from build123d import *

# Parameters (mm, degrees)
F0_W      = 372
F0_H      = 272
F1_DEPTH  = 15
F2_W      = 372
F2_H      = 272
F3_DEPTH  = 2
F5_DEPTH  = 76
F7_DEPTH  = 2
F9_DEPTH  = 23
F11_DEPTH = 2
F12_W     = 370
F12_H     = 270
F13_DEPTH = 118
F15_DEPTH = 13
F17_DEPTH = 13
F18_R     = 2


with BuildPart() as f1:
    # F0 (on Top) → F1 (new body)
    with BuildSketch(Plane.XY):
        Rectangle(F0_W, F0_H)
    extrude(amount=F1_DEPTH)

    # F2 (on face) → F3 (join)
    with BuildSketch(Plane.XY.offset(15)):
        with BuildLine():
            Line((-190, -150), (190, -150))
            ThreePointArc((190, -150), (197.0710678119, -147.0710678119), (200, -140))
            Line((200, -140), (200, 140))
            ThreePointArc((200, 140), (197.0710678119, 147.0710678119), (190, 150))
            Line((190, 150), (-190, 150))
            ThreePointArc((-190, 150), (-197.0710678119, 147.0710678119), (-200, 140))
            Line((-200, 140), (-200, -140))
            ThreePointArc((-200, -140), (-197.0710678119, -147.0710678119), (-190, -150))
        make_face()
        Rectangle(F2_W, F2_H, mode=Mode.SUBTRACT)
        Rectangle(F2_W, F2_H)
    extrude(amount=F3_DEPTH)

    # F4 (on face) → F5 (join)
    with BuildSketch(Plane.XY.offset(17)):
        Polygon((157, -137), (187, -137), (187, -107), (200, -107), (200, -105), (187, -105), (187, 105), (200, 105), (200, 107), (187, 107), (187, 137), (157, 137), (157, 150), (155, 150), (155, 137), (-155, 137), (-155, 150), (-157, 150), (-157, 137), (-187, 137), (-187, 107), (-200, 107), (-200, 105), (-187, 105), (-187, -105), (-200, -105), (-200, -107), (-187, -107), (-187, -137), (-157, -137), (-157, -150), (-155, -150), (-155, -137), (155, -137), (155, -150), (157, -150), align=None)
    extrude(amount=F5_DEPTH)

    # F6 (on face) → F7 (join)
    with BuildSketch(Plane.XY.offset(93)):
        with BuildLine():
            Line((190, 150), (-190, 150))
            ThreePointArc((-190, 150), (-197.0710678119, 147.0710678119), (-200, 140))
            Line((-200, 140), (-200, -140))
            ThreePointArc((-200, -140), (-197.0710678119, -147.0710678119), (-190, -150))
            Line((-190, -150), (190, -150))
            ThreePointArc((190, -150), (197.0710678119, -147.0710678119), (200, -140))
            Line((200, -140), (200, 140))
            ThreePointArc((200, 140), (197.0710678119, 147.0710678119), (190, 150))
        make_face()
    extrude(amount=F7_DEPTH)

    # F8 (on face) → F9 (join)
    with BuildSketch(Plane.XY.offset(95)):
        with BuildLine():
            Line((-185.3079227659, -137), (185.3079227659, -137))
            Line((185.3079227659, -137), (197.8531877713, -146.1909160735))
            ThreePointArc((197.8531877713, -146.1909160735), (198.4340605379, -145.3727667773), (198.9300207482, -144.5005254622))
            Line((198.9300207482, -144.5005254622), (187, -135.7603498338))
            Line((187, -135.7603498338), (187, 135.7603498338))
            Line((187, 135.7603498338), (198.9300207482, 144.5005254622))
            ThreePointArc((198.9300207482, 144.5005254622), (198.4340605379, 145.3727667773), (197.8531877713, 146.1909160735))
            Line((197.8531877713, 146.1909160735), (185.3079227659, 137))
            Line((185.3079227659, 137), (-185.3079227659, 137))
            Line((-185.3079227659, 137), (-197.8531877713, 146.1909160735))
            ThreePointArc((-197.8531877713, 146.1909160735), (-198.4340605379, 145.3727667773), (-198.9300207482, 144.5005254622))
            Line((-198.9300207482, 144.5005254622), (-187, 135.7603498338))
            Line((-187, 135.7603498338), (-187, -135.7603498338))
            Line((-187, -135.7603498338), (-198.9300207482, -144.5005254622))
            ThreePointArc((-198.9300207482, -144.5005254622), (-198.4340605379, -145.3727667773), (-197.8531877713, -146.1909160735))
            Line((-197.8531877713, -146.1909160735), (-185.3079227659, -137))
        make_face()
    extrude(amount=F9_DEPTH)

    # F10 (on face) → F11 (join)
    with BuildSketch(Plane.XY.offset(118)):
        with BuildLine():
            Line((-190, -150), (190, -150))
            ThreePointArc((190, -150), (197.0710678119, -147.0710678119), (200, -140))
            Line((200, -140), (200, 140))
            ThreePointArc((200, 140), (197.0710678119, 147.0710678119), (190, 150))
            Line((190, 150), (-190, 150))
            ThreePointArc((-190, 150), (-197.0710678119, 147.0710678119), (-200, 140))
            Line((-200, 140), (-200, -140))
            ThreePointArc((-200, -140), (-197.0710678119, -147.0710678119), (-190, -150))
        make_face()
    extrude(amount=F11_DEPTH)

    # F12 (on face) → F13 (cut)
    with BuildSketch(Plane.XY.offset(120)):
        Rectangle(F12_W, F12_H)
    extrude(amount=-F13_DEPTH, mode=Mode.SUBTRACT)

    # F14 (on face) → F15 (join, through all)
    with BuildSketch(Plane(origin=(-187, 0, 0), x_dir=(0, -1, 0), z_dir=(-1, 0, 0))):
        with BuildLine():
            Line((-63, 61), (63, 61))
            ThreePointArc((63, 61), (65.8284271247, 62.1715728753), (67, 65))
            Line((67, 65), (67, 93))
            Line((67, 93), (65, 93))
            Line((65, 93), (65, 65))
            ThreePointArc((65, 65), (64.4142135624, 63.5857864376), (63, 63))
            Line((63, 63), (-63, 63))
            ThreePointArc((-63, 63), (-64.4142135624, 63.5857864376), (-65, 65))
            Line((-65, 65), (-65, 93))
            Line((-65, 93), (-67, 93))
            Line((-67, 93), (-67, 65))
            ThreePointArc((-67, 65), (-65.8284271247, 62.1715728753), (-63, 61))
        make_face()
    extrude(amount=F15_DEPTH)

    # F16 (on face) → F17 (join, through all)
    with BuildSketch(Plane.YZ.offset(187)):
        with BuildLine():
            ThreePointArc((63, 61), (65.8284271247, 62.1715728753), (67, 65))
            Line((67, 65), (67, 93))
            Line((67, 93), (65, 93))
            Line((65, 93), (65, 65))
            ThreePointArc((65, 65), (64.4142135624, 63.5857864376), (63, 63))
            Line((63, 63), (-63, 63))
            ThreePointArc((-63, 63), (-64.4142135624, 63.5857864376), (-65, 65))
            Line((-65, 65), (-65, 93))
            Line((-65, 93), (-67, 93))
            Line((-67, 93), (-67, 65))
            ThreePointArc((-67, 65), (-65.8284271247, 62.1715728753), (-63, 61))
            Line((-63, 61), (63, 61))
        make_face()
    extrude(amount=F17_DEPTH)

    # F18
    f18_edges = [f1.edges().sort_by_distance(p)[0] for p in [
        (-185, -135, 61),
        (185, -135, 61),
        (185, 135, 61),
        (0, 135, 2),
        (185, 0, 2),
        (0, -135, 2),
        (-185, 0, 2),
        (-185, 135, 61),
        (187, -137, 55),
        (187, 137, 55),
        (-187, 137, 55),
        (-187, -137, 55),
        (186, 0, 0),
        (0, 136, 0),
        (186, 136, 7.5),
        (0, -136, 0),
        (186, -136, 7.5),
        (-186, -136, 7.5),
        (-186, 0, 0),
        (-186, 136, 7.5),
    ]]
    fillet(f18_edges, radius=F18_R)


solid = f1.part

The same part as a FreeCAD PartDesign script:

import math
import FreeCAD as App
import Part
import Sketcher


def edges_at(feature, points):
    """Names of the edges that pass closest to the given points."""
    edges = feature.Shape.Edges
    near = lambda p: min(range(len(edges)), key=lambda i: edges[i].distToShape(Part.Vertex(*p))[0])
    return sorted({f"Edge{near(p) + 1}" for p in points})


def add_polygon(sketch, points):
    """Adds a closed chain of lines whose ends are joined by coincident constraints."""
    first, n = sketch.GeometryCount, len(points)
    for a, b in zip(points, points[1:] + points[:1]):
        sketch.addGeometry(Part.LineSegment(App.Vector(*a, 0), App.Vector(*b, 0)), False)
    for i in range(n):
        sketch.addConstraint(Sketcher.Constraint("Coincident", first + i, 2, first + (i + 1) % n, 1))

doc = App.newDocument("Part")
body = doc.addObject("PartDesign::Body", "Body")

sketch1 = body.newObject("Sketcher::SketchObject", "Sketch")
sketch1.AttachmentSupport = (doc.getObject("XY_Plane"), [""])
sketch1.MapMode = "FlatFace"
add_polygon(sketch1, [(-186, 136), (-186, -136), (186, -136), (186, 136)])
sketch1.addConstraint([
    Sketcher.Constraint("Vertical", 0),
    Sketcher.Constraint("Horizontal", 1),
    Sketcher.Constraint("Vertical", 2),
    Sketcher.Constraint("Horizontal", 3),
    Sketcher.Constraint("Symmetric", 0, 2, 2, 2, -1, 1),
    Sketcher.Constraint("DistanceX", 1, 1, 1, 2, 372.0),
    Sketcher.Constraint("DistanceY", 0, 2, 0, 1, 272.0),
])
pad1 = body.newObject("PartDesign::Pad", "Pad")
pad1.Profile = sketch1
pad1.Length = 15

sketch2 = body.newObject("Sketcher::SketchObject", "Sketch001")
sketch2.AttachmentSupport = (doc.getObject("XY_Plane"), [""])
sketch2.MapMode = "FlatFace"
sketch2.AttachmentOffset = App.Placement(App.Vector(0, 0, 15), App.Rotation())
sketch2.addGeometry([
    Part.LineSegment(App.Vector(-190, -150, 0), App.Vector(190, -150, 0)),
    Part.ArcOfCircle(Part.Circle(App.Vector(190, -140, 0), App.Vector(0, 0, 1), 10), math.radians(-90), math.radians(0)),
    Part.LineSegment(App.Vector(200, -140, 0), App.Vector(200, 140, 0)),
    Part.ArcOfCircle(Part.Circle(App.Vector(190, 140, 0), App.Vector(0, 0, 1), 10), math.radians(0), math.radians(90)),
    Part.LineSegment(App.Vector(190, 150, 0), App.Vector(-190, 150, 0)),
    Part.ArcOfCircle(Part.Circle(App.Vector(-190, 140, 0), App.Vector(0, 0, 1), 10), math.radians(90), math.radians(180)),
    Part.LineSegment(App.Vector(-200, 140, 0), App.Vector(-200, -140, 0)),
    Part.ArcOfCircle(Part.Circle(App.Vector(-190, -140, 0), App.Vector(0, 0, 1), 10), math.radians(180), math.radians(270)),
], False)
sketch2.addConstraint([
    Sketcher.Constraint("Tangent", 0, 2, 1, 1),
    Sketcher.Constraint("Tangent", 1, 2, 2, 1),
    Sketcher.Constraint("Tangent", 2, 2, 3, 1),
    Sketcher.Constraint("Tangent", 3, 2, 4, 1),
    Sketcher.Constraint("Tangent", 4, 2, 5, 1),
    Sketcher.Constraint("Tangent", 5, 2, 6, 1),
    Sketcher.Constraint("Tangent", 6, 2, 7, 1),
    Sketcher.Constraint("Tangent", 7, 2, 0, 1),
    Sketcher.Constraint("Horizontal", 0),
    Sketcher.Constraint("Vertical", 2),
    Sketcher.Constraint("Horizontal", 4),
    Sketcher.Constraint("Vertical", 6),
    Sketcher.Constraint("Equal", 1, 3),
    Sketcher.Constraint("Equal", 3, 5),
    Sketcher.Constraint("Equal", 5, 7),
    Sketcher.Constraint("Symmetric", 1, 3, 5, 3, -1, 1),
    Sketcher.Constraint("Radius", 1, 10.0),
    Sketcher.Constraint("DistanceX", 0, 1, 0, 2, 380.0),
    Sketcher.Constraint("DistanceY", 2, 1, 2, 2, 280.0),
])
pad2 = body.newObject("PartDesign::Pad", "Pad001")
pad2.Profile = sketch2
pad2.Length = 2

sketch3 = body.newObject("Sketcher::SketchObject", "Sketch002")
sketch3.AttachmentSupport = (doc.getObject("XY_Plane"), [""])
sketch3.MapMode = "FlatFace"
sketch3.AttachmentOffset = App.Placement(App.Vector(0, 0, 17), App.Rotation())
add_polygon(sketch3, [(157, -137), (187, -137), (187, -107), (200, -107), (200, -105), (187, -105), (187, 105), (200, 105), (200, 107), (187, 107), (187, 137), (157, 137), (157, 150), (155, 150), (155, 137), (-155, 137), (-155, 150), (-157, 150), (-157, 137), (-187, 137), (-187, 107), (-200, 107), (-200, 105), (-187, 105), (-187, -105), (-200, -105), (-200, -107), (-187, -107), (-187, -137), (-157, -137), (-157, -150), (-155, -150), (-155, -137), (155, -137), (155, -150), (157, -150)])
sketch3.addConstraint([
    Sketcher.Constraint("Horizontal", 0),
    Sketcher.Constraint("Vertical", 1),
    Sketcher.Constraint("Horizontal", 2),
    Sketcher.Constraint("Vertical", 3),
    Sketcher.Constraint("Horizontal", 4),
    Sketcher.Constraint("Vertical", 5),
    Sketcher.Constraint("Horizontal", 6),
    Sketcher.Constraint("Vertical", 7),
    Sketcher.Constraint("Horizontal", 8),
    Sketcher.Constraint("Vertical", 9),
    Sketcher.Constraint("Horizontal", 10),
    Sketcher.Constraint("Vertical", 11),
    Sketcher.Constraint("Horizontal", 12),
    Sketcher.Constraint("Vertical", 13),
    Sketcher.Constraint("Horizontal", 14),
    Sketcher.Constraint("Vertical", 15),
    Sketcher.Constraint("Horizontal", 16),
    Sketcher.Constraint("Vertical", 17),
    Sketcher.Constraint("Horizontal", 18),
    Sketcher.Constraint("Vertical", 19),
    Sketcher.Constraint("Horizontal", 20),
    Sketcher.Constraint("Vertical", 21),
    Sketcher.Constraint("Horizontal", 22),
    Sketcher.Constraint("Vertical", 23),
    Sketcher.Constraint("Horizontal", 24),
    Sketcher.Constraint("Vertical", 25),
    Sketcher.Constraint("Horizontal", 26),
    Sketcher.Constraint("Vertical", 27),
    Sketcher.Constraint("Horizontal", 28),
    Sketcher.Constraint("Vertical", 29),
    Sketcher.Constraint("Horizontal", 30),
    Sketcher.Constraint("Vertical", 31),
    Sketcher.Constraint("Horizontal", 32),
    Sketcher.Constraint("Vertical", 33),
    Sketcher.Constraint("Horizontal", 34),
    Sketcher.Constraint("Vertical", 35),
    Sketcher.Constraint("Symmetric", 0, 2, 18, 2, -1, 1),
    Sketcher.Constraint("Symmetric", 2, 2, 20, 2, -1, 1),
    Sketcher.Constraint("Symmetric", 4, 2, 22, 2, -1, 1),
    Sketcher.Constraint("Symmetric", 6, 2, 24, 2, -1, 1),
    Sketcher.Constraint("Symmetric", 8, 2, 26, 2, -1, 1),
    Sketcher.Constraint("Symmetric", 10, 2, 28, 2, -1, 1),
    Sketcher.Constraint("Symmetric", 12, 2, 30, 2, -1, 1),
    Sketcher.Constraint("Symmetric", 14, 2, 32, 2, -1, 1),
    Sketcher.Constraint("Symmetric", 16, 2, 34, 2, -1, 1),
    Sketcher.Constraint("Symmetric", 12, 2, 15, 2, -2),
    Sketcher.Constraint("Symmetric", 10, 2, 17, 2, -2),
    Sketcher.Constraint("Symmetric", 8, 2, 19, 2, -2),
    Sketcher.Constraint("Symmetric", 6, 2, 21, 2, -2),
    Sketcher.Constraint("Horizontal", 10, 2, 13, 2),
    Sketcher.Constraint("Vertical", 1, 2, 4, 2),
    Sketcher.Constraint("Equal", 28, 1),
    Sketcher.Constraint("Equal", 34, 3),
    Sketcher.Constraint("Equal", 26, 11),
    Sketcher.Constraint("DistanceX", 0, 1, 0, 2, 30.0),
    Sketcher.Constraint("DistanceX", 2, 1, 2, 2, 13.0),
    Sketcher.Constraint("DistanceX", 12, 2, 12, 1, 2.0),
    Sketcher.Constraint("DistanceX", 14, 2, 14, 1, 310.0),
    Sketcher.Constraint("DistanceY", 5, 1, 5, 2, 210.0),
])
pad3 = body.newObject("PartDesign::Pad", "Pad002")
pad3.Profile = sketch3
pad3.Length = 76

sketch4 = body.newObject("Sketcher::SketchObject", "Sketch003")
sketch4.AttachmentSupport = (doc.getObject("XY_Plane"), [""])
sketch4.MapMode = "FlatFace"
sketch4.AttachmentOffset = App.Placement(App.Vector(0, 0, 93), App.Rotation())
sketch4.addGeometry([
    Part.LineSegment(App.Vector(190, 150, 0), App.Vector(-190, 150, 0)),
    Part.ArcOfCircle(Part.Circle(App.Vector(-190, 140, 0), App.Vector(0, 0, 1), 10), math.radians(90), math.radians(180)),
    Part.LineSegment(App.Vector(-200, 140, 0), App.Vector(-200, -140, 0)),
    Part.ArcOfCircle(Part.Circle(App.Vector(-190, -140, 0), App.Vector(0, 0, 1), 10), math.radians(180), math.radians(270)),
    Part.LineSegment(App.Vector(-190, -150, 0), App.Vector(190, -150, 0)),
    Part.ArcOfCircle(Part.Circle(App.Vector(190, -140, 0), App.Vector(0, 0, 1), 10), math.radians(-90), math.radians(0)),
    Part.LineSegment(App.Vector(200, -140, 0), App.Vector(200, 140, 0)),
    Part.ArcOfCircle(Part.Circle(App.Vector(190, 140, 0), App.Vector(0, 0, 1), 10), math.radians(0), math.radians(90)),
], False)
sketch4.addConstraint([
    Sketcher.Constraint("Tangent", 0, 2, 1, 1),
    Sketcher.Constraint("Tangent", 1, 2, 2, 1),
    Sketcher.Constraint("Tangent", 2, 2, 3, 1),
    Sketcher.Constraint("Tangent", 3, 2, 4, 1),
    Sketcher.Constraint("Tangent", 4, 2, 5, 1),
    Sketcher.Constraint("Tangent", 5, 2, 6, 1),
    Sketcher.Constraint("Tangent", 6, 2, 7, 1),
    Sketcher.Constraint("Tangent", 7, 2, 0, 1),
    Sketcher.Constraint("Horizontal", 0),
    Sketcher.Constraint("Vertical", 2),
    Sketcher.Constraint("Horizontal", 4),
    Sketcher.Constraint("Vertical", 6),
    Sketcher.Constraint("Equal", 1, 3),
    Sketcher.Constraint("Equal", 3, 5),
    Sketcher.Constraint("Equal", 5, 7),
    Sketcher.Constraint("Symmetric", 1, 3, 5, 3, -1, 1),
    Sketcher.Constraint("Radius", 1, 10.0),
    Sketcher.Constraint("DistanceX", 0, 2, 0, 1, 380.0),
    Sketcher.Constraint("DistanceY", 2, 2, 2, 1, 280.0),
])
pad4 = body.newObject("PartDesign::Pad", "Pad003")
pad4.Profile = sketch4
pad4.Length = 2

sketch5 = body.newObject("Sketcher::SketchObject", "Sketch004")
sketch5.AttachmentSupport = (doc.getObject("XY_Plane"), [""])
sketch5.MapMode = "FlatFace"
sketch5.AttachmentOffset = App.Placement(App.Vector(0, 0, 95), App.Rotation())
sketch5.addGeometry([
    Part.LineSegment(App.Vector(-185.307923, -137, 0), App.Vector(185.307923, -137, 0)),
    Part.LineSegment(App.Vector(185.307923, -137, 0), App.Vector(197.853188, -146.190916, 0)),
    Part.ArcOfCircle(Part.Circle(App.Vector(190, -140, 0), App.Vector(0, 0, 1), 10), math.radians(-38.249829), math.radians(-26.747055)),
    Part.LineSegment(App.Vector(198.930021, -144.500525, 0), App.Vector(187, -135.76035, 0)),
    Part.LineSegment(App.Vector(187, -135.76035, 0), App.Vector(187, 135.76035, 0)),
    Part.LineSegment(App.Vector(187, 135.76035, 0), App.Vector(198.930021, 144.500525, 0)),
    Part.ArcOfCircle(Part.Circle(App.Vector(190, 140, 0), App.Vector(0, 0, 1), 10), math.radians(26.747055), math.radians(38.249829)),
    Part.LineSegment(App.Vector(197.853188, 146.190916, 0), App.Vector(185.307923, 137, 0)),
    Part.LineSegment(App.Vector(185.307923, 137, 0), App.Vector(-185.307923, 137, 0)),
    Part.LineSegment(App.Vector(-185.307923, 137, 0), App.Vector(-197.853188, 146.190916, 0)),
    Part.ArcOfCircle(Part.Circle(App.Vector(-190, 140, 0), App.Vector(0, 0, 1), 10), math.radians(141.750171), math.radians(153.252945)),
    Part.LineSegment(App.Vector(-198.930021, 144.500525, 0), App.Vector(-187, 135.76035, 0)),
    Part.LineSegment(App.Vector(-187, 135.76035, 0), App.Vector(-187, -135.76035, 0)),
    Part.LineSegment(App.Vector(-187, -135.76035, 0), App.Vector(-198.930021, -144.500525, 0)),
    Part.ArcOfCircle(Part.Circle(App.Vector(-190, -140, 0), App.Vector(0, 0, 1), 10), math.radians(-153.252945), math.radians(-141.750171)),
    Part.LineSegment(App.Vector(-197.853188, -146.190916, 0), App.Vector(-185.307923, -137, 0)),
], False)
sketch5.addConstraint([
    Sketcher.Constraint("Coincident", 0, 2, 1, 1),
    Sketcher.Constraint("Coincident", 1, 2, 2, 1),
    Sketcher.Constraint("Coincident", 2, 2, 3, 1),
    Sketcher.Constraint("Coincident", 3, 2, 4, 1),
    Sketcher.Constraint("Coincident", 4, 2, 5, 1),
    Sketcher.Constraint("Coincident", 5, 2, 6, 1),
    Sketcher.Constraint("Coincident", 6, 2, 7, 1),
    Sketcher.Constraint("Coincident", 7, 2, 8, 1),
    Sketcher.Constraint("Coincident", 8, 2, 9, 1),
    Sketcher.Constraint("Coincident", 9, 2, 10, 1),
    Sketcher.Constraint("Coincident", 10, 2, 11, 1),
    Sketcher.Constraint("Coincident", 11, 2, 12, 1),
    Sketcher.Constraint("Coincident", 12, 2, 13, 1),
    Sketcher.Constraint("Coincident", 13, 2, 14, 1),
    Sketcher.Constraint("Coincident", 14, 2, 15, 1),
    Sketcher.Constraint("Coincident", 15, 2, 0, 1),
    Sketcher.Constraint("Horizontal", 0),
    Sketcher.Constraint("Vertical", 4),
    Sketcher.Constraint("Horizontal", 8),
    Sketcher.Constraint("Vertical", 12),
    Sketcher.Constraint("Equal", 2, 6),
    Sketcher.Constraint("Equal", 6, 10),
    Sketcher.Constraint("Equal", 10, 14),
    Sketcher.Constraint("Symmetric", 2, 3, 10, 3, -1, 1),
    Sketcher.Constraint("Symmetric", 6, 3, 14, 3, -1, 1),
    Sketcher.Constraint("Symmetric", 0, 2, 8, 2, -1, 1),
    Sketcher.Constraint("Symmetric", 3, 2, 11, 2, -1, 1),
    Sketcher.Constraint("Symmetric", 6, 3, 10, 3, -2),
    Sketcher.Constraint("Parallel", 1, 3),
    Sketcher.Constraint("Parallel", 5, 7),
    Sketcher.Constraint("Parallel", 3, 9),
    Sketcher.Constraint("Parallel", 9, 11),
    Sketcher.Constraint("Parallel", 7, 13),
    Sketcher.Constraint("Parallel", 13, 15),
    Sketcher.Constraint("Horizontal", 6, 2, 9, 2),
    Sketcher.Constraint("Horizontal", 5, 2, 10, 2),
    Sketcher.Constraint("Horizontal", 4, 2, 11, 2),
    Sketcher.Constraint("Horizontal", 3, 2, 12, 2),
    Sketcher.Constraint("Horizontal", 1, 2, 14, 2),
    Sketcher.Constraint("Radius", 2, 10.0),
    Sketcher.Constraint("DistanceX", -1, 1, 2, 3, 190.0),
    Sketcher.Constraint("DistanceY", 2, 3, -1, 1, 140.0),
    Sketcher.Constraint("DistanceY", 0, 2, -1, 1, 137.0),
    Sketcher.Constraint("DistanceX", -1, 1, 3, 2, 187.0),
    Sketcher.Constraint("DistanceY", 4, 1, 4, 2, 271.5207),
    Sketcher.Constraint("Distance", 1, 15.55174),
    Sketcher.Constraint("DistanceX", 0, 1, 0, 2, 370.615846),
])
pad5 = body.newObject("PartDesign::Pad", "Pad004")
pad5.Profile = sketch5
pad5.Length = 23

sketch6 = body.newObject("Sketcher::SketchObject", "Sketch005")
sketch6.AttachmentSupport = (doc.getObject("XY_Plane"), [""])
sketch6.MapMode = "FlatFace"
sketch6.AttachmentOffset = App.Placement(App.Vector(0, 0, 118), App.Rotation())
sketch6.addGeometry([
    Part.LineSegment(App.Vector(-190, -150, 0), App.Vector(190, -150, 0)),
    Part.ArcOfCircle(Part.Circle(App.Vector(190, -140, 0), App.Vector(0, 0, 1), 10), math.radians(-90), math.radians(0)),
    Part.LineSegment(App.Vector(200, -140, 0), App.Vector(200, 140, 0)),
    Part.ArcOfCircle(Part.Circle(App.Vector(190, 140, 0), App.Vector(0, 0, 1), 10), math.radians(0), math.radians(90)),
    Part.LineSegment(App.Vector(190, 150, 0), App.Vector(-190, 150, 0)),
    Part.ArcOfCircle(Part.Circle(App.Vector(-190, 140, 0), App.Vector(0, 0, 1), 10), math.radians(90), math.radians(180)),
    Part.LineSegment(App.Vector(-200, 140, 0), App.Vector(-200, -140, 0)),
    Part.ArcOfCircle(Part.Circle(App.Vector(-190, -140, 0), App.Vector(0, 0, 1), 10), math.radians(180), math.radians(270)),
], False)
sketch6.addConstraint([
    Sketcher.Constraint("Tangent", 0, 2, 1, 1),
    Sketcher.Constraint("Tangent", 1, 2, 2, 1),
    Sketcher.Constraint("Tangent", 2, 2, 3, 1),
    Sketcher.Constraint("Tangent", 3, 2, 4, 1),
    Sketcher.Constraint("Tangent", 4, 2, 5, 1),
    Sketcher.Constraint("Tangent", 5, 2, 6, 1),
    Sketcher.Constraint("Tangent", 6, 2, 7, 1),
    Sketcher.Constraint("Tangent", 7, 2, 0, 1),
    Sketcher.Constraint("Horizontal", 0),
    Sketcher.Constraint("Vertical", 2),
    Sketcher.Constraint("Horizontal", 4),
    Sketcher.Constraint("Vertical", 6),
    Sketcher.Constraint("Equal", 1, 3),
    Sketcher.Constraint("Equal", 3, 5),
    Sketcher.Constraint("Equal", 5, 7),
    Sketcher.Constraint("Symmetric", 1, 3, 5, 3, -1, 1),
    Sketcher.Constraint("Radius", 1, 10.0),
    Sketcher.Constraint("DistanceX", 0, 1, 0, 2, 380.0),
    Sketcher.Constraint("DistanceY", 2, 1, 2, 2, 280.0),
])
pad6 = body.newObject("PartDesign::Pad", "Pad005")
pad6.Profile = sketch6
pad6.Length = 2

sketch7 = body.newObject("Sketcher::SketchObject", "Sketch006")
sketch7.AttachmentSupport = (doc.getObject("XY_Plane"), [""])
sketch7.MapMode = "FlatFace"
sketch7.AttachmentOffset = App.Placement(App.Vector(0, 0, 120), App.Rotation())
add_polygon(sketch7, [(-185, 135), (-185, -135), (185, -135), (185, 135)])
sketch7.addConstraint([
    Sketcher.Constraint("Vertical", 0),
    Sketcher.Constraint("Horizontal", 1),
    Sketcher.Constraint("Vertical", 2),
    Sketcher.Constraint("Horizontal", 3),
    Sketcher.Constraint("Symmetric", 0, 2, 2, 2, -1, 1),
    Sketcher.Constraint("DistanceX", 1, 1, 1, 2, 370.0),
    Sketcher.Constraint("DistanceY", 0, 2, 0, 1, 270.0),
])
pocket1 = body.newObject("PartDesign::Pocket", "Pocket")
pocket1.Profile = sketch7
pocket1.Length = 118

sketch8 = body.newObject("Sketcher::SketchObject", "Sketch007")
sketch8.AttachmentSupport = (doc.getObject("YZ_Plane"), [""])
sketch8.MapMode = "FlatFace"
sketch8.AttachmentOffset = App.Placement(App.Vector(0, 0, -187), App.Rotation())
sketch8.addGeometry([
    Part.LineSegment(App.Vector(63, 61, 0), App.Vector(-63, 61, 0)),
    Part.ArcOfCircle(Part.Circle(App.Vector(-63, 65, 0), App.Vector(0, 0, 1), 4), math.radians(180), math.radians(270)),
    Part.LineSegment(App.Vector(-67, 65, 0), App.Vector(-67, 93, 0)),
    Part.LineSegment(App.Vector(-67, 93, 0), App.Vector(-65, 93, 0)),
    Part.LineSegment(App.Vector(-65, 93, 0), App.Vector(-65, 65, 0)),
    Part.ArcOfCircle(Part.Circle(App.Vector(-63, 65, 0), App.Vector(0, 0, 1), 2), math.radians(180), math.radians(270)),
    Part.LineSegment(App.Vector(-63, 63, 0), App.Vector(63, 63, 0)),
    Part.ArcOfCircle(Part.Circle(App.Vector(63, 65, 0), App.Vector(0, 0, 1), 2), math.radians(-90), math.radians(0)),
    Part.LineSegment(App.Vector(65, 65, 0), App.Vector(65, 93, 0)),
    Part.LineSegment(App.Vector(65, 93, 0), App.Vector(67, 93, 0)),
    Part.LineSegment(App.Vector(67, 93, 0), App.Vector(67, 65, 0)),
    Part.ArcOfCircle(Part.Circle(App.Vector(63, 65, 0), App.Vector(0, 0, 1), 4), math.radians(-90), math.radians(0)),
], False)
sketch8.addConstraint([
    Sketcher.Constraint("Tangent", 0, 2, 1, 2),
    Sketcher.Constraint("Tangent", 1, 1, 2, 1),
    Sketcher.Constraint("Coincident", 2, 2, 3, 1),
    Sketcher.Constraint("Coincident", 3, 2, 4, 1),
    Sketcher.Constraint("Tangent", 4, 2, 5, 1),
    Sketcher.Constraint("Tangent", 5, 2, 6, 1),
    Sketcher.Constraint("Tangent", 6, 2, 7, 1),
    Sketcher.Constraint("Tangent", 7, 2, 8, 1),
    Sketcher.Constraint("Coincident", 8, 2, 9, 1),
    Sketcher.Constraint("Coincident", 9, 2, 10, 1),
    Sketcher.Constraint("Tangent", 10, 2, 11, 2),
    Sketcher.Constraint("Tangent", 11, 1, 0, 1),
    Sketcher.Constraint("Horizontal", 0),
    Sketcher.Constraint("Vertical", 2),
    Sketcher.Constraint("Horizontal", 3),
    Sketcher.Constraint("Vertical", 4),
    Sketcher.Constraint("Horizontal", 6),
    Sketcher.Constraint("Vertical", 8),
    Sketcher.Constraint("Horizontal", 9),
    Sketcher.Constraint("Vertical", 10),
    Sketcher.Constraint("Coincident", 5, 3, 1, 3),
    Sketcher.Constraint("Coincident", 11, 3, 7, 3),
    Sketcher.Constraint("Equal", 5, 7),
    Sketcher.Constraint("Symmetric", 3, 2, 8, 2, -2),
    Sketcher.Constraint("Radius", 1, 4.0),
    Sketcher.Constraint("Radius", 5, 2.0),
    Sketcher.Constraint("DistanceX", 0, 2, 0, 1, 126.0),
    Sketcher.Constraint("DistanceY", 2, 1, 2, 2, 28.0),
    Sketcher.Constraint("DistanceY", -1, 1, 1, 3, 65.0),
])
pad7 = body.newObject("PartDesign::Pad", "Pad006")
pad7.Profile = sketch8
pad7.Length = 13
pad7.Reversed = True

sketch9 = body.newObject("Sketcher::SketchObject", "Sketch008")
sketch9.AttachmentSupport = (doc.getObject("YZ_Plane"), [""])
sketch9.MapMode = "FlatFace"
sketch9.AttachmentOffset = App.Placement(App.Vector(0, 0, 187), App.Rotation())
sketch9.addGeometry([
    Part.ArcOfCircle(Part.Circle(App.Vector(63, 65, 0), App.Vector(0, 0, 1), 4), math.radians(-90), math.radians(0)),
    Part.LineSegment(App.Vector(67, 65, 0), App.Vector(67, 93, 0)),
    Part.LineSegment(App.Vector(67, 93, 0), App.Vector(65, 93, 0)),
    Part.LineSegment(App.Vector(65, 93, 0), App.Vector(65, 65, 0)),
    Part.ArcOfCircle(Part.Circle(App.Vector(63, 65, 0), App.Vector(0, 0, 1), 2), math.radians(-90), math.radians(0)),
    Part.LineSegment(App.Vector(63, 63, 0), App.Vector(-63, 63, 0)),
    Part.ArcOfCircle(Part.Circle(App.Vector(-63, 65, 0), App.Vector(0, 0, 1), 2), math.radians(180), math.radians(270)),
    Part.LineSegment(App.Vector(-65, 65, 0), App.Vector(-65, 93, 0)),
    Part.LineSegment(App.Vector(-65, 93, 0), App.Vector(-67, 93, 0)),
    Part.LineSegment(App.Vector(-67, 93, 0), App.Vector(-67, 65, 0)),
    Part.ArcOfCircle(Part.Circle(App.Vector(-63, 65, 0), App.Vector(0, 0, 1), 4), math.radians(180), math.radians(270)),
    Part.LineSegment(App.Vector(-63, 61, 0), App.Vector(63, 61, 0)),
], False)
sketch9.addConstraint([
    Sketcher.Constraint("Tangent", 0, 2, 1, 1),
    Sketcher.Constraint("Coincident", 1, 2, 2, 1),
    Sketcher.Constraint("Coincident", 2, 2, 3, 1),
    Sketcher.Constraint("Tangent", 3, 2, 4, 2),
    Sketcher.Constraint("Tangent", 4, 1, 5, 1),
    Sketcher.Constraint("Tangent", 5, 2, 6, 2),
    Sketcher.Constraint("Tangent", 6, 1, 7, 1),
    Sketcher.Constraint("Coincident", 7, 2, 8, 1),
    Sketcher.Constraint("Coincident", 8, 2, 9, 1),
    Sketcher.Constraint("Tangent", 9, 2, 10, 1),
    Sketcher.Constraint("Tangent", 10, 2, 11, 1),
    Sketcher.Constraint("Tangent", 11, 2, 0, 1),
    Sketcher.Constraint("Vertical", 1),
    Sketcher.Constraint("Horizontal", 2),
    Sketcher.Constraint("Vertical", 3),
    Sketcher.Constraint("Horizontal", 5),
    Sketcher.Constraint("Vertical", 7),
    Sketcher.Constraint("Horizontal", 8),
    Sketcher.Constraint("Vertical", 9),
    Sketcher.Constraint("Horizontal", 11),
    Sketcher.Constraint("Coincident", 4, 3, 0, 3),
    Sketcher.Constraint("Coincident", 10, 3, 6, 3),
    Sketcher.Constraint("Equal", 4, 6),
    Sketcher.Constraint("Symmetric", 2, 2, 7, 2, -2),
    Sketcher.Constraint("Radius", 0, 4.0),
    Sketcher.Constraint("Radius", 4, 2.0),
    Sketcher.Constraint("DistanceX", 5, 2, 5, 1, 126.0),
    Sketcher.Constraint("DistanceY", 1, 1, 1, 2, 28.0),
    Sketcher.Constraint("DistanceY", -1, 1, 0, 3, 65.0),
])
pad8 = body.newObject("PartDesign::Pad", "Pad007")
pad8.Profile = sketch9
pad8.Length = 13
doc.recompute()

fillet = body.newObject("PartDesign::Fillet", "Fillet")
fillet.Base = (pad8, edges_at(pad8, [
    (-185, -135, 61),
    (185, -135, 61),
    (185, 135, 61),
    (0, 135, 2),
    (185, 0, 2),
    (0, -135, 2),
    (-185, 0, 2),
    (-185, 135, 61),
    (187, -137, 55),
    (187, 137, 55),
    (-187, 137, 55),
    (-187, -137, 55),
    (186, 0, 0),
    (0, 136, 0),
    (186, 136, 7.5),
    (0, -136, 0),
    (186, -136, 7.5),
    (-186, -136, 7.5),
    (-186, 0, 0),
    (-186, 136, 7.5),
]))
fillet.Radius = 2

doc.recompute()
